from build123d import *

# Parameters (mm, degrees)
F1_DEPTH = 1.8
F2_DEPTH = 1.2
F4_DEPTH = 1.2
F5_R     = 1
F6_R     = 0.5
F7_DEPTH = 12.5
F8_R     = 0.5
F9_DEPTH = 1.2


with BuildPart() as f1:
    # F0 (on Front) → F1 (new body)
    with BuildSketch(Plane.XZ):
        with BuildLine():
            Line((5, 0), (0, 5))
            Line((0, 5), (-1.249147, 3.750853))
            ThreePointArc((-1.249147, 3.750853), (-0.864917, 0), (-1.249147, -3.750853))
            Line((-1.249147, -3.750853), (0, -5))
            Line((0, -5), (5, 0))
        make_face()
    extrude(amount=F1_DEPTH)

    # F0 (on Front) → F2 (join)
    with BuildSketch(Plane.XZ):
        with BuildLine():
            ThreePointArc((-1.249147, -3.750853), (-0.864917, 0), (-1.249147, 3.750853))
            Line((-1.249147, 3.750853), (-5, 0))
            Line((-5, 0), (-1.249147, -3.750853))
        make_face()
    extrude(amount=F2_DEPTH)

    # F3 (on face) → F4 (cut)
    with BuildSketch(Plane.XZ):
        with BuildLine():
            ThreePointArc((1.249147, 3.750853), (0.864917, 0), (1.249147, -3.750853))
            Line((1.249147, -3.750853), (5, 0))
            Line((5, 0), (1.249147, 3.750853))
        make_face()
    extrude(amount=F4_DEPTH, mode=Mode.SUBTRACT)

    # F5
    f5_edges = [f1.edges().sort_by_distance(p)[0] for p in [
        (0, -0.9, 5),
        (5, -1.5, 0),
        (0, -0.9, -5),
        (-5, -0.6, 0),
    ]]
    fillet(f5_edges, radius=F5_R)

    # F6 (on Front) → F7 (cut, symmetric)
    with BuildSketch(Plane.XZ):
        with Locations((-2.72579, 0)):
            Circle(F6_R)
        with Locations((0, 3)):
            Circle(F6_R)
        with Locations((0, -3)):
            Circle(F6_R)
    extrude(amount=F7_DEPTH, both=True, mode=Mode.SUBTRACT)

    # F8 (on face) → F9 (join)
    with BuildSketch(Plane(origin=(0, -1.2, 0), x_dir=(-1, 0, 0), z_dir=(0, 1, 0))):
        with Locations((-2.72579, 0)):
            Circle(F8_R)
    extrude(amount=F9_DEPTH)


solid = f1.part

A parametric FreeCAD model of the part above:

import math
import FreeCAD as App
import Part
import Sketcher

V = App.Vector


def edges_at(feature, points):
    """Names of the edges that pass closest to the given points."""
    edges = feature.Shape.Edges
    near = lambda p: min(range(len(edges)), key=lambda i: edges[i].distToShape(Part.Vertex(*p))[0])
    return sorted({f"Edge{near(p) + 1}" for p in points})

doc = App.newDocument("Part")
body = doc.addObject("PartDesign::Body", "Body")

# Sketch on XZ plane
sketch1 = body.newObject("Sketcher::SketchObject", "Sketch")
sketch1.AttachmentSupport = (doc.getObject("XZ_Plane"), [""])
sketch1.MapMode = "FlatFace"
sketch1.addGeometry([
    Part.LineSegment(V(5, 0, 0), V(0, 5, 0)),  # 0
    Part.LineSegment(V(0, 5, 0), V(-1.249147, 3.750853, 0)),  # 1
    Part.ArcOfCircle(Part.Circle(V(-19.364944, 0, 0), V(0, 0, 1), 18.500027), math.radians(-11.697731), math.radians(11.697731)),  # 2
    Part.LineSegment(V(-1.249147, -3.750853, 0), V(0, -5, 0)),  # 3
    Part.LineSegment(V(0, -5, 0), V(5, 0, 0)),  # 4
], False)
sketch1.addConstraint([
    Sketcher.Constraint("Coincident", 0, 2, 1, 1),
    Sketcher.Constraint("Coincident", 1, 2, 2, 2),
    Sketcher.Constraint("Coincident", 2, 1, 3, 1),
    Sketcher.Constraint("Coincident", 3, 2, 4, 1),
    Sketcher.Constraint("Coincident", 4, 2, 0, 1),
    Sketcher.Constraint("Symmetric", 0, 2, 3, 2, -1, 1),
    Sketcher.Constraint("Symmetric", 1, 2, 2, 1, -1),
    Sketcher.Constraint("PointOnObject", 0, 2, -2),
    Sketcher.Constraint("PointOnObject", 4, 2, -1),
    Sketcher.Constraint("Perpendicular", 0, 1),
    Sketcher.Constraint("Perpendicular", 1, 3),
    Sketcher.Constraint("DistanceY", -1, 1, 0, 2, 5.0),
    Sketcher.Constraint("Radius", 2, 18.500027),
    Sketcher.Constraint("Distance", 1, 1.766561),
])
pad1 = body.newObject("PartDesign::Pad", "Pad")
pad1.Profile = sketch1
pad1.Length = 1.8

# Sketch on XZ plane
sketch2 = body.newObject("Sketcher::SketchObject", "Sketch001")
sketch2.AttachmentSupport = (doc.getObject("XZ_Plane"), [""])
sketch2.MapMode = "FlatFace"
sketch2.addGeometry([
    Part.ArcOfCircle(Part.Circle(V(-19.364944, 0, 0), V(0, 0, 1), 18.500027), math.radians(-11.697731), math.radians(11.697731)),
    Part.LineSegment(V(-1.249147, 3.750853, 0), V(-5, 0, 0)),
    Part.LineSegment(V(-5, 0, 0), V(-1.249147, -3.750853, 0)),
], False)
sketch2.addConstraint([
    Sketcher.Constraint("Coincident", 0, 2, 1, 1),
    Sketcher.Constraint("Coincident", 1, 2, 2, 1),
    Sketcher.Constraint("Coincident", 2, 2, 0, 1),
    Sketcher.Constraint("Symmetric", 0, 2, 2, 2, -1),
    Sketcher.Constraint("PointOnObject", 1, 2, -1),
    Sketcher.Constraint("Perpendicular", 1, 2),
    Sketcher.Constraint("DistanceX", 1, 2, -1, 1, 5.0),
    Sketcher.Constraint("Radius", 0, 18.500027),
    Sketcher.Constraint("Distance", 1, 5.304507),
])
pad2 = body.newObject("PartDesign::Pad", "Pad001")
pad2.Profile = sketch2
pad2.Length = 1.2

# Sketch on XZ plane
sketch3 = body.newObject("Sketcher::SketchObject", "Sketch002")
sketch3.AttachmentSupport = (doc.getObject("XZ_Plane"), [""])
sketch3.MapMode = "FlatFace"
sketch3.addGeometry([
    Part.ArcOfCircle(Part.Circle(V(19.364944, 0, 0), V(0, 0, 1), 18.500027), math.radians(168.302269), math.radians(191.697731)),
    Part.LineSegment(V(1.249147, -3.750853, 0), V(5, 0, 0)),
    Part.LineSegment(V(5, 0, 0), V(1.249147, 3.750853, 0)),
], False)
sketch3.addConstraint([
    Sketcher.Constraint("Coincident", 0, 2, 1, 1),
    Sketcher.Constraint("Coincident", 1, 2, 2, 1),
    Sketcher.Constraint("Coincident", 2, 2, 0, 1),
    Sketcher.Constraint("Symmetric", 0, 2, 2, 2, -1),
    Sketcher.Constraint("PointOnObject", 1, 2, -1),
    Sketcher.Constraint("Perpendicular", 1, 2),
    Sketcher.Constraint("DistanceX", -1, 1, 1, 2, 5.0),
    Sketcher.Constraint("Radius", 0, 18.500027),
    Sketcher.Constraint("Distance", 1, 5.304507),
])
pocket1 = body.newObject("PartDesign::Pocket", "Pocket")
pocket1.Profile = sketch3
pocket1.Length = 1.2
pocket1.Reversed = True
doc.recompute()

fillet = body.newObject("PartDesign::Fillet", "Fillet")
fillet.Base = (pocket1, edges_at(pocket1, [
    (0, -0.9, 5),
    (5, -1.5, 0),
    (0, -0.9, -5),
    (-5, -0.6, 0),
]))
fillet.Radius = 1

# Sketch on XZ plane
sketch4 = body.newObject("Sketcher::SketchObject", "Sketch003")
sketch4.AttachmentSupport = (doc.getObject("XZ_Plane"), [""])
sketch4.MapMode = "FlatFace"
sketch4.addGeometry([
    Part.Circle(V(-2.72579, 0, 0), V(0, 0, 1), 0.5),
    Part.Circle(V(0, 3, 0), V(0, 0, 1), 0.5),
    Part.Circle(V(0, -3, 0), V(0, 0, 1), 0.5),
], False)
sketch4.addConstraint([
    Sketcher.Constraint("Equal", 0, 1),
    Sketcher.Constraint("Equal", 1, 2),
    Sketcher.Constraint("Symmetric", 1, 3, 2, 3, -1, 1),
    Sketcher.Constraint("PointOnObject", 0, 3, -1),
    Sketcher.Constraint("PointOnObject", 1, 3, -2),
    Sketcher.Constraint("Diameter", 0, 1.0),
    Sketcher.Constraint("DistanceY", -1, 1, 1, 3, 3.0),
    Sketcher.Constraint("DistanceX", 0, 3, -1, 1, 2.72579),
])
pocket2 = body.newObject("PartDesign::Pocket", "Pocket001")
pocket2.Profile = sketch4
pocket2.Length = 25
pocket2.Midplane = True

# Sketch on XZ plane
sketch5 = body.newObject("Sketcher::SketchObject", "Sketch004")
sketch5.AttachmentSupport = (doc.getObject("XZ_Plane"), [""])
sketch5.MapMode = "FlatFace"
sketch5.AttachmentOffset = App.Placement(V(0, 0, 1.2), App.Rotation())
sketch5.addGeometry(Part.Circle(V(2.72579, 0, 0), V(0, 0, 1), 0.5), False)
sketch5.addConstraint([
    Sketcher.Constraint("PointOnObject", 0, 3, -1),
    Sketcher.Constraint("Diameter", 0, 1.0),
    Sketcher.Constraint("DistanceX", -1, 1, 0, 3, 2.72579),
])
pad3 = body.newObject("PartDesign::Pad", "Pad002")
pad3.Profile = sketch5
pad3.Length = 1.2
pad3.Reversed = True

doc.recompute()
